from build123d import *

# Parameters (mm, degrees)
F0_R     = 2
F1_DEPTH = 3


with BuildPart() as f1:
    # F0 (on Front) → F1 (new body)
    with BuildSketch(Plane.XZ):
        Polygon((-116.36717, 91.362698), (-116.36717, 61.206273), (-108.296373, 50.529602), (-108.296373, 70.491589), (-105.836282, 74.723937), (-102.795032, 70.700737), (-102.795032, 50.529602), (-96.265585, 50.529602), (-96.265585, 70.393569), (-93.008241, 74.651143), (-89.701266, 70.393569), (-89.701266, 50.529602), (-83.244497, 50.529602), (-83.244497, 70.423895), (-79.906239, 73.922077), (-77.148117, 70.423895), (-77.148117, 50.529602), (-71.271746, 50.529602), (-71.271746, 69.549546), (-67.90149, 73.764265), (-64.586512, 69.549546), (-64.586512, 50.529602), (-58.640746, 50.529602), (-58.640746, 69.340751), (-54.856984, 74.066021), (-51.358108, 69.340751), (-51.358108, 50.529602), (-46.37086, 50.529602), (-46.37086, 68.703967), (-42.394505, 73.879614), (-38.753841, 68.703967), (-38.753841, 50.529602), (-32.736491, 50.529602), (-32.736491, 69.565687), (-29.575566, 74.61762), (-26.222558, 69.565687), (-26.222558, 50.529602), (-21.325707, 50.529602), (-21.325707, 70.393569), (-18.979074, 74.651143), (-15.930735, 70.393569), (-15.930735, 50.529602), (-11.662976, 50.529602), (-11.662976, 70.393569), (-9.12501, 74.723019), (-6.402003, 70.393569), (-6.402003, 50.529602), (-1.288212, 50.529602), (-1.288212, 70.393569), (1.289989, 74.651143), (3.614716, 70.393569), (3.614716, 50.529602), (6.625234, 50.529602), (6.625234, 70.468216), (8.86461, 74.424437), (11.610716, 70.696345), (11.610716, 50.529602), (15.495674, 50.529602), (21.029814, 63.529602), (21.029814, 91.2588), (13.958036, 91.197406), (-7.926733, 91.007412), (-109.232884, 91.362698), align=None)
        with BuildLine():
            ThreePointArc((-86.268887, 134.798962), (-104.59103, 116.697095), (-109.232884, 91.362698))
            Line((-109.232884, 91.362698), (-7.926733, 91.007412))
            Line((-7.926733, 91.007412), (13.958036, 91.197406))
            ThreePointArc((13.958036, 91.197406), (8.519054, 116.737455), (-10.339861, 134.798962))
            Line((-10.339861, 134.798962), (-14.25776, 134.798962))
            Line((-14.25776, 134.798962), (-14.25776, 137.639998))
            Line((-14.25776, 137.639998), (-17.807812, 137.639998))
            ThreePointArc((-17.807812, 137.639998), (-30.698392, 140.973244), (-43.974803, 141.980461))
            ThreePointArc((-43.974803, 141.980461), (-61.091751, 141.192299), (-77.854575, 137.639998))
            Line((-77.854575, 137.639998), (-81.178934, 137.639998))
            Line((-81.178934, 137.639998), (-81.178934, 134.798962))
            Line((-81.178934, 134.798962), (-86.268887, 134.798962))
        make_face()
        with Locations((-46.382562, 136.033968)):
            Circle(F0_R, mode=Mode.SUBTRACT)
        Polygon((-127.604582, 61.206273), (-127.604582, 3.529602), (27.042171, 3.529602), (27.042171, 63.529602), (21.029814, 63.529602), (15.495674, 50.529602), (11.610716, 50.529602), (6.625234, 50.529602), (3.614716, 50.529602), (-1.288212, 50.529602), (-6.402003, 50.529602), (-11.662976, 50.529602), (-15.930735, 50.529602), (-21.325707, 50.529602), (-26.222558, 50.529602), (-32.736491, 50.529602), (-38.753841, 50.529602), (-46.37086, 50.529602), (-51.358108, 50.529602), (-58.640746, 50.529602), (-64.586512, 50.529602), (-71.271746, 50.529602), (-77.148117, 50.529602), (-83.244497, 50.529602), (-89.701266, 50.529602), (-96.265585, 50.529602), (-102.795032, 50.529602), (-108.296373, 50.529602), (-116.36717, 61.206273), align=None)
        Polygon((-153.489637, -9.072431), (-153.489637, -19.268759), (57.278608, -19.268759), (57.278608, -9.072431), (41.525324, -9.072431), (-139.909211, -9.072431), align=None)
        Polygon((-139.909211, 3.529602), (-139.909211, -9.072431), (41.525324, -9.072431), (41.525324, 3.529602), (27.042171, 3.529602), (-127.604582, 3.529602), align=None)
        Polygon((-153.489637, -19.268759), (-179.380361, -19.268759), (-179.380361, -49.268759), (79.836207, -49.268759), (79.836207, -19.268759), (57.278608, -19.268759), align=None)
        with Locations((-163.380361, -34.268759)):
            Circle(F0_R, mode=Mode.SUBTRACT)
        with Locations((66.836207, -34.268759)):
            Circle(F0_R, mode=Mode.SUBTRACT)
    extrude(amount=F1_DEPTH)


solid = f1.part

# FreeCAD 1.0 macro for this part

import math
import FreeCAD as App
import Part
import Sketcher
from FreeCAD import Vector

doc = App.newDocument("Part")
params = doc.addObject("Spreadsheet::Sheet", "Params")
for row, (alias, value) in enumerate([
    ("sketch1_diameter", "4 mm"),
    ("sketch1_height", "30 mm"),
    ("sketch1_height2", "60 mm"),
    ("pad1_length", "3 mm"),
], start=1):
    params.set(f"A{row}", alias)
    params.set(f"B{row}", "=" + value)
    params.setAlias(f"B{row}", alias)

body = doc.addObject("PartDesign::Body", "Body")

sketch1 = body.newObject("Sketcher::SketchObject", "Sketch")
sketch1.AttachmentSupport = (doc.getObject("XZ_Plane"), [""])
sketch1.MapMode = "FlatFace"
sketch1.addGeometry([
    Part.LineSegment(Vector(-116.4, 91.4, 0), Vector(-116.4, 61.2, 0)),
    Part.LineSegment(Vector(-116.4, 61.2, 0), Vector(-127.6, 61.2, 0)),
    Part.LineSegment(Vector(-127.6, 61.2, 0), Vector(-127.6, 3.5, 0)),
    Part.LineSegment(Vector(-127.6, 3.5, 0), Vector(-139.9, 3.5, 0)),
    Part.LineSegment(Vector(-139.9, 3.5, 0), Vector(-139.9, -9.1, 0)),
    Part.LineSegment(Vector(-139.9, -9.1, 0), Vector(-153.5, -9.1, 0)),
    Part.LineSegment(Vector(-153.5, -9.1, 0), Vector(-153.5, -19.3, 0)),
    Part.LineSegment(Vector(-153.5, -19.3, 0), Vector(-179.4, -19.3, 0)),
    Part.LineSegment(Vector(-179.4, -19.3, 0), Vector(-179.4, -49.3, 0)),
    Part.LineSegment(Vector(-179.4, -49.3, 0), Vector(79.8, -49.3, 0)),
    Part.LineSegment(Vector(79.8, -49.3, 0), Vector(79.8, -19.3, 0)),
    Part.LineSegment(Vector(79.8, -19.3, 0), Vector(57.3, -19.3, 0)),
    Part.LineSegment(Vector(57.3, -19.3, 0), Vector(57.3, -9.1, 0)),
    Part.LineSegment(Vector(57.3, -9.1, 0), Vector(41.5, -9.1, 0)),
    Part.LineSegment(Vector(41.5, -9.1, 0), Vector(41.5, 3.5, 0)),
    Part.LineSegment(Vector(41.5, 3.5, 0), Vector(27, 3.5, 0)),
    Part.LineSegment(Vector(27, 3.5, 0), Vector(27, 63.5, 0)),
    Part.LineSegment(Vector(27, 63.5, 0), Vector(21, 63.5, 0)),
    Part.LineSegment(Vector(21, 63.5, 0), Vector(21, 91.3, 0)),
    Part.LineSegment(Vector(21, 91.3, 0), Vector(14, 91.2, 0)),
    Part.ArcOfCircle(Part.Circle(Vector(-30.3, 95.1, 0), Vector(0, 0, 1), 44.4), math.radians(-5), math.radians(63)),
    Part.LineSegment(Vector(-10.3, 134.8, 0), Vector(-14.3, 134.8, 0)),
    Part.LineSegment(Vector(-14.3, 134.8, 0), Vector(-14.3, 137.6, 0)),
    Part.LineSegment(Vector(-14.3, 137.6, 0), Vector(-17.8, 137.6, 0)),
    Part.ArcOfCircle(Part.Circle(Vector(-43, 66.8, 0), Vector(0, 0, 1), 75.2), math.radians(70), math.radians(91)),
    Part.ArcOfCircle(Part.Circle(Vector(-47.7, 36.7, 0), Vector(0, 0, 1), 105.4), math.radians(87.97), math.radians(106.63)),
    Part.LineSegment(Vector(-77.9, 137.6, 0), Vector(-81.2, 137.6, 0)),
    Part.LineSegment(Vector(-81.2, 137.6, 0), Vector(-81.2, 134.8, 0)),
    Part.LineSegment(Vector(-81.2, 134.8, 0), Vector(-86.3, 134.8, 0)),
    Part.ArcOfCircle(Part.Circle(Vector(-66.7, 96.7, 0), Vector(0, 0, 1), 42.9), math.radians(117), math.radians(187)),
    Part.LineSegment(Vector(-109.2, 91.4, 0), Vector(-116.4, 91.4, 0)),
    Part.Circle(Vector(-163.4, -34.3, 0), Vector(0, 0, 1), 2),
    Part.Circle(Vector(66.8, -34.3, 0), Vector(0, 0, 1), 2),
    Part.LineSegment(Vector(-108.3, 50.5, 0), Vector(-108.3, 70.5, 0)),
    Part.LineSegment(Vector(-108.3, 70.5, 0), Vector(-105.8, 74.7, 0)),
    Part.LineSegment(Vector(-105.8, 74.7, 0), Vector(-102.8, 70.7, 0)),
    Part.LineSegment(Vector(-102.8, 70.7, 0), Vector(-102.8, 50.5, 0)),
    Part.LineSegment(Vector(-102.8, 50.5, 0), Vector(-108.3, 50.5, 0)),
    Part.LineSegment(Vector(-96.3, 50.5, 0), Vector(-96.3, 70.4, 0)),
    Part.LineSegment(Vector(-96.3, 70.4, 0), Vector(-93, 74.7, 0)),
    Part.LineSegment(Vector(-93, 74.7, 0), Vector(-89.7, 70.4, 0)),
    Part.LineSegment(Vector(-89.7, 70.4, 0), Vector(-89.7, 50.5, 0)),
    Part.LineSegment(Vector(-89.7, 50.5, 0), Vector(-96.3, 50.5, 0)),
    Part.LineSegment(Vector(-83.2, 50.5, 0), Vector(-83.2, 70.4, 0)),
    Part.LineSegment(Vector(-83.2, 70.4, 0), Vector(-79.9, 73.9, 0)),
    Part.LineSegment(Vector(-79.9, 73.9, 0), Vector(-77.1, 70.4, 0)),
    Part.LineSegment(Vector(-77.1, 70.4, 0), Vector(-77.1, 50.5, 0)),
    Part.LineSegment(Vector(-77.1, 50.5, 0), Vector(-83.2, 50.5, 0)),
    Part.LineSegment(Vector(-71.3, 50.5, 0), Vector(-71.3, 69.5, 0)),
    Part.LineSegment(Vector(-71.3, 69.5, 0), Vector(-67.9, 73.8, 0)),
    Part.LineSegment(Vector(-67.9, 73.8, 0), Vector(-64.6, 69.5, 0)),
    Part.LineSegment(Vector(-64.6, 69.5, 0), Vector(-64.6, 50.5, 0)),
    Part.LineSegment(Vector(-64.6, 50.5, 0), Vector(-71.3, 50.5, 0)),
    Part.LineSegment(Vector(-58.6, 50.5, 0), Vector(-58.6, 69.3, 0)),
    Part.LineSegment(Vector(-58.6, 69.3, 0), Vector(-54.9, 74.1, 0)),
    Part.LineSegment(Vector(-54.9, 74.1, 0), Vector(-51.4, 69.3, 0)),
    Part.LineSegment(Vector(-51.4, 69.3, 0), Vector(-51.4, 50.5, 0)),
    Part.LineSegment(Vector(-51.4, 50.5, 0), Vector(-58.6, 50.5, 0)),
    Part.LineSegment(Vector(-46.4, 50.5, 0), Vector(-46.4, 68.7, 0)),
    Part.LineSegment(Vector(-46.4, 68.7, 0), Vector(-42.4, 73.9, 0)),
    Part.LineSegment(Vector(-42.4, 73.9, 0), Vector(-38.8, 68.7, 0)),
    Part.LineSegment(Vector(-38.8, 68.7, 0), Vector(-38.8, 50.5, 0)),
    Part.LineSegment(Vector(-38.8, 50.5, 0), Vector(-46.4, 50.5, 0)),
    Part.LineSegment(Vector(-32.7, 50.5, 0), Vector(-32.7, 69.6, 0)),
    Part.LineSegment(Vector(-32.7, 69.6, 0), Vector(-29.6, 74.6, 0)),
    Part.LineSegment(Vector(-29.6, 74.6, 0), Vector(-26.2, 69.6, 0)),
    Part.LineSegment(Vector(-26.2, 69.6, 0), Vector(-26.2, 50.5, 0)),
    Part.LineSegment(Vector(-26.2, 50.5, 0), Vector(-32.7, 50.5, 0)),
    Part.LineSegment(Vector(-15.9, 70.4, 0), Vector(-15.9, 50.5, 0)),
    Part.LineSegment(Vector(-15.9, 50.5, 0), Vector(-21.3, 50.5, 0)),
    Part.LineSegment(Vector(-21.3, 50.5, 0), Vector(-21.3, 70.4, 0)),
    Part.LineSegment(Vector(-21.3, 70.4, 0), Vector(-19, 74.7, 0)),
    Part.LineSegment(Vector(-19, 74.7, 0), Vector(-15.9, 70.4, 0)),
    Part.LineSegment(Vector(-6.4, 70.4, 0), Vector(-6.4, 50.5, 0)),
    Part.LineSegment(Vector(-6.4, 50.5, 0), Vector(-11.7, 50.5, 0)),
    Part.LineSegment(Vector(-11.7, 50.5, 0), Vector(-11.7, 70.4, 0)),
    Part.LineSegment(Vector(-11.7, 70.4, 0), Vector(-9.1, 74.7, 0)),
    Part.LineSegment(Vector(-9.1, 74.7, 0), Vector(-6.4, 70.4, 0)),
    Part.LineSegment(Vector(3.6, 70.4, 0), Vector(3.6, 50.5, 0)),
    Part.LineSegment(Vector(3.6, 50.5, 0), Vector(-1.3, 50.5, 0)),
    Part.LineSegment(Vector(-1.3, 50.5, 0), Vector(-1.3, 70.4, 0)),
    Part.LineSegment(Vector(-1.3, 70.4, 0), Vector(1.3, 74.7, 0)),
    Part.LineSegment(Vector(1.3, 74.7, 0), Vector(3.6, 70.4, 0)),
    Part.LineSegment(Vector(11.6, 70.7, 0), Vector(11.6, 50.5, 0)),
    Part.LineSegment(Vector(11.6, 50.5, 0), Vector(6.6, 50.5, 0)),
    Part.LineSegment(Vector(6.6, 50.5, 0), Vector(6.6, 70.5, 0)),
    Part.LineSegment(Vector(6.6, 70.5, 0), Vector(8.9, 74.4, 0)),
    Part.LineSegment(Vector(8.9, 74.4, 0), Vector(11.6, 70.7, 0)),
    Part.Circle(Vector(-46.4, 136, 0), Vector(0, 0, 1), 2),
], False)
sketch1.addConstraint([
    Sketcher.Constraint("Coincident", 0, 2, 1, 1),
    Sketcher.Constraint("Coincident", 1, 2, 2, 1),
    Sketcher.Constraint("Coincident", 2, 2, 3, 1),
    Sketcher.Constraint("Coincident", 3, 2, 4, 1),
    Sketcher.Constraint("Coincident", 4, 2, 5, 1),
    Sketcher.Constraint("Coincident", 5, 2, 6, 1),
    Sketcher.Constraint("Coincident", 6, 2, 7, 1),
    Sketcher.Constraint("Coincident", 7, 2, 8, 1),
    Sketcher.Constraint("Coincident", 8, 2, 9, 1),
    Sketcher.Constraint("Coincident", 9, 2, 10, 1),
    Sketcher.Constraint("Coincident", 10, 2, 11, 1),
    Sketcher.Constraint("Coincident", 11, 2, 12, 1),
    Sketcher.Constraint("Coincident", 12, 2, 13, 1),
    Sketcher.Constraint("Coincident", 13, 2, 14, 1),
    Sketcher.Constraint("Coincident", 14, 2, 15, 1),
    Sketcher.Constraint("Coincident", 15, 2, 16, 1),
    Sketcher.Constraint("Coincident", 16, 2, 17, 1),
    Sketcher.Constraint("Coincident", 17, 2, 18, 1),
    Sketcher.Constraint("Coincident", 18, 2, 19, 1),
    Sketcher.Constraint("Coincident", 19, 2, 20, 1),
    Sketcher.Constraint("Coincident", 20, 2, 21, 1),
    Sketcher.Constraint("Coincident", 21, 2, 22, 1),
    Sketcher.Constraint("Coincident", 22, 2, 23, 1),
    Sketcher.Constraint("Coincident", 23, 2, 24, 1),
    Sketcher.Constraint("Coincident", 24, 2, 25, 1),
    Sketcher.Constraint("Coincident", 25, 2, 26, 1),
    Sketcher.Constraint("Coincident", 26, 2, 27, 1),
    Sketcher.Constraint("Coincident", 27, 2, 28, 1),
    Sketcher.Constraint("Coincident", 28, 2, 29, 1),
    Sketcher.Constraint("Coincident", 29, 2, 30, 1),
    Sketcher.Constraint("Coincident", 30, 2, 0, 1),
    Sketcher.Constraint("Coincident", 33, 2, 34, 1),
    Sketcher.Constraint("Coincident", 34, 2, 35, 1),
    Sketcher.Constraint("Coincident", 35, 2, 36, 1),
    Sketcher.Constraint("Coincident", 36, 2, 37, 1),
    Sketcher.Constraint("Coincident", 37, 2, 33, 1),
    Sketcher.Constraint("Coincident", 38, 2, 39, 1),
    Sketcher.Constraint("Coincident", 39, 2, 40, 1),
    Sketcher.Constraint("Coincident", 40, 2, 41, 1),
    Sketcher.Constraint("Coincident", 41, 2, 42, 1),
    Sketcher.Constraint("Coincident", 42, 2, 38, 1),
    Sketcher.Constraint("Coincident", 43, 2, 44, 1),
    Sketcher.Constraint("Coincident", 44, 2, 45, 1),
    Sketcher.Constraint("Coincident", 45, 2, 46, 1),
    Sketcher.Constraint("Coincident", 46, 2, 47, 1),
    Sketcher.Constraint("Coincident", 47, 2, 43, 1),
    Sketcher.Constraint("Coincident", 48, 2, 49, 1),
    Sketcher.Constraint("Coincident", 49, 2, 50, 1),
    Sketcher.Constraint("Coincident", 50, 2, 51, 1),
    Sketcher.Constraint("Coincident", 51, 2, 52, 1),
    Sketcher.Constraint("Coincident", 52, 2, 48, 1),
    Sketcher.Constraint("Coincident", 53, 2, 54, 1),
    Sketcher.Constraint("Coincident", 54, 2, 55, 1),
    Sketcher.Constraint("Coincident", 55, 2, 56, 1),
    Sketcher.Constraint("Coincident", 56, 2, 57, 1),
    Sketcher.Constraint("Coincident", 57, 2, 53, 1),
    Sketcher.Constraint("Coincident", 58, 2, 59, 1),
    Sketcher.Constraint("Coincident", 59, 2, 60, 1),
    Sketcher.Constraint("Coincident", 60, 2, 61, 1),
    Sketcher.Constraint("Coincident", 61, 2, 62, 1),
    Sketcher.Constraint("Coincident", 62, 2, 58, 1),
    Sketcher.Constraint("Coincident", 63, 2, 64, 1),
    Sketcher.Constraint("Coincident", 64, 2, 65, 1),
    Sketcher.Constraint("Coincident", 65, 2, 66, 1),
    Sketcher.Constraint("Coincident", 66, 2, 67, 1),
    Sketcher.Constraint("Coincident", 67, 2, 63, 1),
    Sketcher.Constraint("Coincident", 68, 2, 69, 1),
    Sketcher.Constraint("Coincident", 69, 2, 70, 1),
    Sketcher.Constraint("Coincident", 70, 2, 71, 1),
    Sketcher.Constraint("Coincident", 71, 2, 72, 1),
    Sketcher.Constraint("Coincident", 72, 2, 68, 1),
    Sketcher.Constraint("Coincident", 73, 2, 74, 1),
    Sketcher.Constraint("Coincident", 74, 2, 75, 1),
    Sketcher.Constraint("Coincident", 75, 2, 76, 1),
    Sketcher.Constraint("Coincident", 76, 2, 77, 1),
    Sketcher.Constraint("Coincident", 77, 2, 73, 1),
    Sketcher.Constraint("Coincident", 78, 2, 79, 1),
    Sketcher.Constraint("Coincident", 79, 2, 80, 1),
    Sketcher.Constraint("Coincident", 80, 2, 81, 1),
    Sketcher.Constraint("Coincident", 81, 2, 82, 1),
    Sketcher.Constraint("Coincident", 82, 2, 78, 1),
    Sketcher.Constraint("Coincident", 83, 2, 84, 1),
    Sketcher.Constraint("Coincident", 84, 2, 85, 1),
    Sketcher.Constraint("Coincident", 85, 2, 86, 1),
    Sketcher.Constraint("Coincident", 86, 2, 87, 1),
    Sketcher.Constraint("Coincident", 87, 2, 83, 1),
    Sketcher.Constraint("Vertical", 0),
    Sketcher.Constraint("Horizontal", 1),
    Sketcher.Constraint("Vertical", 2),
    Sketcher.Constraint("Horizontal", 3),
    Sketcher.Constraint("Vertical", 4),
    Sketcher.Constraint("Horizontal", 5),
    Sketcher.Constraint("Vertical", 6),
    Sketcher.Constraint("Horizontal", 7),
    Sketcher.Constraint("Vertical", 8),
    Sketcher.Constraint("Horizontal", 9),
    Sketcher.Constraint("Vertical", 10),
    Sketcher.Constraint("Horizontal", 11),
    Sketcher.Constraint("Vertical", 12),
    Sketcher.Constraint("Horizontal", 13),
    Sketcher.Constraint("Vertical", 14),
    Sketcher.Constraint("Horizontal", 15),
    Sketcher.Constraint("Vertical", 16),
    Sketcher.Constraint("Horizontal", 17),
    Sketcher.Constraint("Vertical", 18),
    Sketcher.Constraint("Horizontal", 21),
    Sketcher.Constraint("Vertical", 22),
    Sketcher.Constraint("Horizontal", 23),
    Sketcher.Constraint("Horizontal", 26),
    Sketcher.Constraint("Vertical", 27),
    Sketcher.Constraint("Horizontal", 28),
    Sketcher.Constraint("Horizontal", 30),
    Sketcher.Constraint("Vertical", 33),
    Sketcher.Constraint("Vertical", 36),
    Sketcher.Constraint("Horizontal", 37),
    Sketcher.Constraint("Vertical", 38),
    Sketcher.Constraint("Vertical", 41),
    Sketcher.Constraint("Horizontal", 42),
    Sketcher.Constraint("Vertical", 43),
    Sketcher.Constraint("Vertical", 46),
    Sketcher.Constraint("Horizontal", 47),
    Sketcher.Constraint("Vertical", 48),
    Sketcher.Constraint("Vertical", 51),
    Sketcher.Constraint("Horizontal", 52),
    Sketcher.Constraint("Vertical", 53),
    Sketcher.Constraint("Vertical", 56),
    Sketcher.Constraint("Horizontal", 57),
    Sketcher.Constraint("Vertical", 58),
    Sketcher.Constraint("Vertical", 61),
    Sketcher.Constraint("Horizontal", 62),
    Sketcher.Constraint("Vertical", 63),
    Sketcher.Constraint("Vertical", 66),
    Sketcher.Constraint("Horizontal", 67),
    Sketcher.Constraint("Vertical", 68),
    Sketcher.Constraint("Horizontal", 69),
    Sketcher.Constraint("Vertical", 70),
    Sketcher.Constraint("Vertical", 73),
    Sketcher.Constraint("Horizontal", 74),
    Sketcher.Constraint("Vertical", 75),
    Sketcher.Constraint("Vertical", 78),
    Sketcher.Constraint("Horizontal", 79),
    Sketcher.Constraint("Vertical", 80),
    Sketcher.Constraint("Vertical", 83),
    Sketcher.Constraint("Horizontal", 84),
    Sketcher.Constraint("Vertical", 85),
    Sketcher.Constraint("Equal", 31, 32),
    Sketcher.Constraint("Equal", 32, 88),
    Sketcher.Constraint("Horizontal", 31, 3, 32, 3),
    Sketcher.Constraint("Horizontal", 7, 2, 10, 2),
    Sketcher.Constraint("Horizontal", 5, 2, 12, 2),
    Sketcher.Constraint("Horizontal", 3, 2, 14, 2),
    Sketcher.Constraint("Horizontal", 23, 2, 25, 2),
    Sketcher.Constraint("Horizontal", 21, 2, 27, 2),
    Sketcher.Constraint("Horizontal", 38, 2, 40, 2),
    Sketcher.Constraint("Horizontal", 37, 2, 41, 2),
    Sketcher.Constraint("Horizontal", 43, 2, 45, 2),
    Sketcher.Constraint("Horizontal", 42, 2, 46, 2),
    Sketcher.Constraint("Horizontal", 48, 2, 50, 2),
    Sketcher.Constraint("Horizontal", 47, 2, 51, 2),
    Sketcher.Constraint("Horizontal", 53, 2, 55, 2),
    Sketcher.Constraint("Horizontal", 52, 2, 56, 2),
    Sketcher.Constraint("Horizontal", 58, 2, 60, 2),
    Sketcher.Constraint("Horizontal", 57, 2, 61, 2),
    Sketcher.Constraint("Horizontal", 63, 2, 65, 2),
    Sketcher.Constraint("Horizontal", 62, 2, 66, 2),
    Sketcher.Constraint("Horizontal", 67, 2, 68, 2),
    Sketcher.Constraint("Horizontal", 40, 2, 70, 2),
    Sketcher.Constraint("Horizontal", 39, 2, 71, 2),
    Sketcher.Constraint("Horizontal", 70, 2, 72, 2),
    Sketcher.Constraint("Horizontal", 69, 2, 73, 2),
    Sketcher.Constraint("Horizontal", 72, 2, 75, 2),
    Sketcher.Constraint("Horizontal", 75, 2, 77, 2),
    Sketcher.Constraint("Horizontal", 74, 2, 78, 2),
    Sketcher.Constraint("Horizontal", 77, 2, 80, 2),
    Sketcher.Constraint("Horizontal", 71, 2, 81, 2),
    Sketcher.Constraint("Horizontal", 80, 2, 82, 2),
    Sketcher.Constraint("Horizontal", 79, 2, 83, 2),
    Sketcher.Constraint("Diameter", 31, 4.0),
    Sketcher.Constraint("DistanceY", 8, 2, 8, 1, 30.0),
    Sketcher.Constraint("DistanceY", 16, 1, 16, 2, 60.0),
    Sketcher.Constraint("DistanceY", -1, 1, 22, 2, 137.639998),
    Sketcher.Constraint("Radius", 20, 44.38421),
    Sketcher.Constraint("Radius", 29, 42.869171),
    Sketcher.Constraint("DistanceX", 11, 2, 11, 1, 22.557599),
    Sketcher.Constraint("DistanceX", 21, 2, 21, 1, 3.917899),
    Sketcher.Constraint("Radius", 24, 75.187332),
    Sketcher.Constraint("Radius", 25, 105.360416),
    Sketcher.Constraint("DistanceX", 1, 2, 1, 1, 11.237412),
    Sketcher.Constraint("DistanceX", 3, 2, 3, 1, 12.304629),
    Sketcher.Constraint("DistanceX", 9, 1, 9, 2, 259.216568),
    Sketcher.Constraint("DistanceX", 23, 2, 23, 1, 3.550052),
    Sketcher.Constraint("DistanceX", 26, 2, 26, 1, 3.324359),
    Sketcher.Constraint("DistanceX", 37, 2, 37, 1, 5.501341),
    Sketcher.Constraint("DistanceX", 42, 2, 42, 1, 6.564319),
    Sketcher.Constraint("DistanceX", 47, 2, 47, 1, 6.09638),
    Sketcher.Constraint("DistanceX", 62, 2, 62, 1, 7.617019),
    Sketcher.Constraint("DistanceX", 79, 2, 79, 1, 4.902928),
    Sketcher.Constraint("DistanceY", 2, 2, 2, 1, 57.676671),
    Sketcher.Constraint("DistanceY", 53, 1, 53, 2, 18.811149),
    Sketcher.Constraint("DistanceY", -1, 1, 16, 2, 63.529602),
    Sketcher.Constraint("DistanceY", -1, 1, 18, 2, 91.2588),
    Sketcher.Constraint("DistanceY", -1, 1, 29, 2, 91.362698),
    Sketcher.Constraint("DistanceY", -1, 1, 36, 2, 50.529602),
    Sketcher.Constraint("Distance", 39, 5.360711),
    Sketcher.Constraint("Distance", 45, 4.454718),
    Sketcher.Constraint("Distance", 59, 6.52677),
    Sketcher.Constraint("Distance", 64, 5.959318),
    Sketcher.Constraint("Distance", 65, 6.063389),
    Sketcher.Constraint("Distance", 86, 4.546041),
    Sketcher.Constraint("Distance", 87, 4.63031),
    Sketcher.Constraint("DistanceX", 5, 2, 5, 1, 13.580426),
    Sketcher.Constraint("DistanceX", 7, 2, 7, 1, 25.890724),
    Sketcher.Constraint("DistanceX", 13, 2, 13, 1, 15.753284),
    Sketcher.Constraint("DistanceX", 15, 2, 15, 1, 14.483153),
    Sketcher.Constraint("DistanceX", 17, 2, 17, 1, 6.012357),
    Sketcher.Constraint("DistanceX", 28, 2, 28, 1, 5.089953),
    Sketcher.Constraint("DistanceX", 30, 2, 30, 1, 7.134286),
    Sketcher.Constraint("DistanceX", 52, 2, 52, 1, 6.685234),
    Sketcher.Constraint("DistanceX", 57, 2, 57, 1, 7.282638),
    Sketcher.Constraint("DistanceX", 67, 2, 67, 1, 6.513933),
    Sketcher.Constraint("DistanceX", 69, 2, 69, 1, 5.394972),
    Sketcher.Constraint("DistanceX", 74, 2, 74, 1, 5.260973),
    Sketcher.Constraint("DistanceX", 84, 2, 84, 1, 4.985482),
    Sketcher.Constraint("DistanceY", 4, 2, 4, 1, 12.602033),
    Sketcher.Constraint("DistanceY", 6, 2, 6, 1, 10.196328),
    Sketcher.Constraint("DistanceY", 22, 1, 22, 2, 2.841036),
    Sketcher.Constraint("DistanceY", 33, 1, 33, 2, 19.961987),
    Sketcher.Constraint("DistanceY", 36, 2, 36, 1, 20.171135),
    Sketcher.Constraint("DistanceY", 38, 1, 38, 2, 19.863967),
    Sketcher.Constraint("DistanceY", 43, 1, 43, 2, 19.894293),
    Sketcher.Constraint("DistanceY", 48, 1, 48, 2, 19.019944),
    Sketcher.Constraint("DistanceY", 58, 1, 58, 2, 18.174365),
    Sketcher.Constraint("DistanceY", 63, 1, 63, 2, 19.036085),
    Sketcher.Constraint("DistanceY", 83, 2, 83, 1, 20.166743),
    Sketcher.Constraint("DistanceY", 85, 1, 85, 2, 19.938614),
    Sketcher.Constraint("DistanceY", -1, 1, 25, 3, 36.68603),
    Sketcher.Constraint("DistanceX", 31, 3, -1, 1, 163.380361),
    Sketcher.Constraint("DistanceY", 31, 3, -1, 1, 34.268759),
    Sketcher.Constraint("DistanceX", 0, 2, -1, 1, 116.36717),
    Sketcher.Constraint("DistanceX", 20, 2, -1, 1, 10.339861),
    Sketcher.Constraint("DistanceY", -1, 1, 24, 2, 141.980461),
    Sketcher.Constraint("DistanceX", 34, 2, -1, 1, 105.836282),
    Sketcher.Constraint("DistanceX", 39, 2, -1, 1, 93.008241),
    Sketcher.Constraint("DistanceX", 44, 2, -1, 1, 79.906239),
    Sketcher.Constraint("DistanceX", 49, 2, -1, 1, 67.90149),
    Sketcher.Constraint("DistanceX", 50, 2, -1, 1, 64.586512),
    Sketcher.Constraint("DistanceY", -1, 1, 54, 2, 74.066021),
    Sketcher.Constraint("DistanceX", 58, 2, -1, 1, 46.37086),
    Sketcher.Constraint("DistanceX", 63, 2, -1, 1, 32.736491),
    Sketcher.Constraint("DistanceX", 76, 2, -1, 1, 9.12501),
    Sketcher.Constraint("DistanceY", -1, 1, 76, 2, 74.723019),
    Sketcher.Constraint("DistanceX", 79, 2, -1, 1, 1.288212),
    Sketcher.Constraint("DistanceX", -1, 1, 81, 2, 1.289989),
    Sketcher.Constraint("DistanceX", -1, 1, 86, 2, 8.86461),
    Sketcher.Constraint("Distance", 19, 7.072044),
    Sketcher.Constraint("Distance", 34, 4.895387),
    Sketcher.Constraint("Distance", 35, 5.043346),
    Sketcher.Constraint("Distance", 40, 5.391013),
    Sketcher.Constraint("Distance", 44, 4.835416),
    Sketcher.Constraint("Distance", 49, 5.396525),
    Sketcher.Constraint("Distance", 54, 6.053514),
    Sketcher.Constraint("Distance", 60, 6.327856),
    Sketcher.Constraint("Distance", 71, 4.861442),
    Sketcher.Constraint("Distance", 76, 5.018507),
    Sketcher.Constraint("DistanceX", 20, 3, -1, 1, 30.251453),
    Sketcher.Constraint("DistanceX", 24, 3, -1, 1, 43.002012),
    Sketcher.Constraint("DistanceX", -1, 1, 32, 3, 66.836207),
    Sketcher.Constraint("DistanceX", 88, 3, -1, 1, 46.382562),
    Sketcher.Constraint("DistanceY", -1, 1, 88, 3, 136.033968),
    Sketcher.Constraint("DistanceX", 53, 2, -1, 1, 58.640746),
    Sketcher.Constraint("DistanceX", 68, 2, -1, 1, 15.930735),
])
sketch1.setExpression("Constraints[177]", "Params.sketch1_diameter")
sketch1.setExpression("Constraints[178]", "Params.sketch1_height")
sketch1.setExpression("Constraints[179]", "Params.sketch1_height2")
pad1 = body.newObject("PartDesign::Pad", "Pad")
pad1.Profile = sketch1
pad1.setExpression("Length", "Params.pad1_length")

doc.recompute()
